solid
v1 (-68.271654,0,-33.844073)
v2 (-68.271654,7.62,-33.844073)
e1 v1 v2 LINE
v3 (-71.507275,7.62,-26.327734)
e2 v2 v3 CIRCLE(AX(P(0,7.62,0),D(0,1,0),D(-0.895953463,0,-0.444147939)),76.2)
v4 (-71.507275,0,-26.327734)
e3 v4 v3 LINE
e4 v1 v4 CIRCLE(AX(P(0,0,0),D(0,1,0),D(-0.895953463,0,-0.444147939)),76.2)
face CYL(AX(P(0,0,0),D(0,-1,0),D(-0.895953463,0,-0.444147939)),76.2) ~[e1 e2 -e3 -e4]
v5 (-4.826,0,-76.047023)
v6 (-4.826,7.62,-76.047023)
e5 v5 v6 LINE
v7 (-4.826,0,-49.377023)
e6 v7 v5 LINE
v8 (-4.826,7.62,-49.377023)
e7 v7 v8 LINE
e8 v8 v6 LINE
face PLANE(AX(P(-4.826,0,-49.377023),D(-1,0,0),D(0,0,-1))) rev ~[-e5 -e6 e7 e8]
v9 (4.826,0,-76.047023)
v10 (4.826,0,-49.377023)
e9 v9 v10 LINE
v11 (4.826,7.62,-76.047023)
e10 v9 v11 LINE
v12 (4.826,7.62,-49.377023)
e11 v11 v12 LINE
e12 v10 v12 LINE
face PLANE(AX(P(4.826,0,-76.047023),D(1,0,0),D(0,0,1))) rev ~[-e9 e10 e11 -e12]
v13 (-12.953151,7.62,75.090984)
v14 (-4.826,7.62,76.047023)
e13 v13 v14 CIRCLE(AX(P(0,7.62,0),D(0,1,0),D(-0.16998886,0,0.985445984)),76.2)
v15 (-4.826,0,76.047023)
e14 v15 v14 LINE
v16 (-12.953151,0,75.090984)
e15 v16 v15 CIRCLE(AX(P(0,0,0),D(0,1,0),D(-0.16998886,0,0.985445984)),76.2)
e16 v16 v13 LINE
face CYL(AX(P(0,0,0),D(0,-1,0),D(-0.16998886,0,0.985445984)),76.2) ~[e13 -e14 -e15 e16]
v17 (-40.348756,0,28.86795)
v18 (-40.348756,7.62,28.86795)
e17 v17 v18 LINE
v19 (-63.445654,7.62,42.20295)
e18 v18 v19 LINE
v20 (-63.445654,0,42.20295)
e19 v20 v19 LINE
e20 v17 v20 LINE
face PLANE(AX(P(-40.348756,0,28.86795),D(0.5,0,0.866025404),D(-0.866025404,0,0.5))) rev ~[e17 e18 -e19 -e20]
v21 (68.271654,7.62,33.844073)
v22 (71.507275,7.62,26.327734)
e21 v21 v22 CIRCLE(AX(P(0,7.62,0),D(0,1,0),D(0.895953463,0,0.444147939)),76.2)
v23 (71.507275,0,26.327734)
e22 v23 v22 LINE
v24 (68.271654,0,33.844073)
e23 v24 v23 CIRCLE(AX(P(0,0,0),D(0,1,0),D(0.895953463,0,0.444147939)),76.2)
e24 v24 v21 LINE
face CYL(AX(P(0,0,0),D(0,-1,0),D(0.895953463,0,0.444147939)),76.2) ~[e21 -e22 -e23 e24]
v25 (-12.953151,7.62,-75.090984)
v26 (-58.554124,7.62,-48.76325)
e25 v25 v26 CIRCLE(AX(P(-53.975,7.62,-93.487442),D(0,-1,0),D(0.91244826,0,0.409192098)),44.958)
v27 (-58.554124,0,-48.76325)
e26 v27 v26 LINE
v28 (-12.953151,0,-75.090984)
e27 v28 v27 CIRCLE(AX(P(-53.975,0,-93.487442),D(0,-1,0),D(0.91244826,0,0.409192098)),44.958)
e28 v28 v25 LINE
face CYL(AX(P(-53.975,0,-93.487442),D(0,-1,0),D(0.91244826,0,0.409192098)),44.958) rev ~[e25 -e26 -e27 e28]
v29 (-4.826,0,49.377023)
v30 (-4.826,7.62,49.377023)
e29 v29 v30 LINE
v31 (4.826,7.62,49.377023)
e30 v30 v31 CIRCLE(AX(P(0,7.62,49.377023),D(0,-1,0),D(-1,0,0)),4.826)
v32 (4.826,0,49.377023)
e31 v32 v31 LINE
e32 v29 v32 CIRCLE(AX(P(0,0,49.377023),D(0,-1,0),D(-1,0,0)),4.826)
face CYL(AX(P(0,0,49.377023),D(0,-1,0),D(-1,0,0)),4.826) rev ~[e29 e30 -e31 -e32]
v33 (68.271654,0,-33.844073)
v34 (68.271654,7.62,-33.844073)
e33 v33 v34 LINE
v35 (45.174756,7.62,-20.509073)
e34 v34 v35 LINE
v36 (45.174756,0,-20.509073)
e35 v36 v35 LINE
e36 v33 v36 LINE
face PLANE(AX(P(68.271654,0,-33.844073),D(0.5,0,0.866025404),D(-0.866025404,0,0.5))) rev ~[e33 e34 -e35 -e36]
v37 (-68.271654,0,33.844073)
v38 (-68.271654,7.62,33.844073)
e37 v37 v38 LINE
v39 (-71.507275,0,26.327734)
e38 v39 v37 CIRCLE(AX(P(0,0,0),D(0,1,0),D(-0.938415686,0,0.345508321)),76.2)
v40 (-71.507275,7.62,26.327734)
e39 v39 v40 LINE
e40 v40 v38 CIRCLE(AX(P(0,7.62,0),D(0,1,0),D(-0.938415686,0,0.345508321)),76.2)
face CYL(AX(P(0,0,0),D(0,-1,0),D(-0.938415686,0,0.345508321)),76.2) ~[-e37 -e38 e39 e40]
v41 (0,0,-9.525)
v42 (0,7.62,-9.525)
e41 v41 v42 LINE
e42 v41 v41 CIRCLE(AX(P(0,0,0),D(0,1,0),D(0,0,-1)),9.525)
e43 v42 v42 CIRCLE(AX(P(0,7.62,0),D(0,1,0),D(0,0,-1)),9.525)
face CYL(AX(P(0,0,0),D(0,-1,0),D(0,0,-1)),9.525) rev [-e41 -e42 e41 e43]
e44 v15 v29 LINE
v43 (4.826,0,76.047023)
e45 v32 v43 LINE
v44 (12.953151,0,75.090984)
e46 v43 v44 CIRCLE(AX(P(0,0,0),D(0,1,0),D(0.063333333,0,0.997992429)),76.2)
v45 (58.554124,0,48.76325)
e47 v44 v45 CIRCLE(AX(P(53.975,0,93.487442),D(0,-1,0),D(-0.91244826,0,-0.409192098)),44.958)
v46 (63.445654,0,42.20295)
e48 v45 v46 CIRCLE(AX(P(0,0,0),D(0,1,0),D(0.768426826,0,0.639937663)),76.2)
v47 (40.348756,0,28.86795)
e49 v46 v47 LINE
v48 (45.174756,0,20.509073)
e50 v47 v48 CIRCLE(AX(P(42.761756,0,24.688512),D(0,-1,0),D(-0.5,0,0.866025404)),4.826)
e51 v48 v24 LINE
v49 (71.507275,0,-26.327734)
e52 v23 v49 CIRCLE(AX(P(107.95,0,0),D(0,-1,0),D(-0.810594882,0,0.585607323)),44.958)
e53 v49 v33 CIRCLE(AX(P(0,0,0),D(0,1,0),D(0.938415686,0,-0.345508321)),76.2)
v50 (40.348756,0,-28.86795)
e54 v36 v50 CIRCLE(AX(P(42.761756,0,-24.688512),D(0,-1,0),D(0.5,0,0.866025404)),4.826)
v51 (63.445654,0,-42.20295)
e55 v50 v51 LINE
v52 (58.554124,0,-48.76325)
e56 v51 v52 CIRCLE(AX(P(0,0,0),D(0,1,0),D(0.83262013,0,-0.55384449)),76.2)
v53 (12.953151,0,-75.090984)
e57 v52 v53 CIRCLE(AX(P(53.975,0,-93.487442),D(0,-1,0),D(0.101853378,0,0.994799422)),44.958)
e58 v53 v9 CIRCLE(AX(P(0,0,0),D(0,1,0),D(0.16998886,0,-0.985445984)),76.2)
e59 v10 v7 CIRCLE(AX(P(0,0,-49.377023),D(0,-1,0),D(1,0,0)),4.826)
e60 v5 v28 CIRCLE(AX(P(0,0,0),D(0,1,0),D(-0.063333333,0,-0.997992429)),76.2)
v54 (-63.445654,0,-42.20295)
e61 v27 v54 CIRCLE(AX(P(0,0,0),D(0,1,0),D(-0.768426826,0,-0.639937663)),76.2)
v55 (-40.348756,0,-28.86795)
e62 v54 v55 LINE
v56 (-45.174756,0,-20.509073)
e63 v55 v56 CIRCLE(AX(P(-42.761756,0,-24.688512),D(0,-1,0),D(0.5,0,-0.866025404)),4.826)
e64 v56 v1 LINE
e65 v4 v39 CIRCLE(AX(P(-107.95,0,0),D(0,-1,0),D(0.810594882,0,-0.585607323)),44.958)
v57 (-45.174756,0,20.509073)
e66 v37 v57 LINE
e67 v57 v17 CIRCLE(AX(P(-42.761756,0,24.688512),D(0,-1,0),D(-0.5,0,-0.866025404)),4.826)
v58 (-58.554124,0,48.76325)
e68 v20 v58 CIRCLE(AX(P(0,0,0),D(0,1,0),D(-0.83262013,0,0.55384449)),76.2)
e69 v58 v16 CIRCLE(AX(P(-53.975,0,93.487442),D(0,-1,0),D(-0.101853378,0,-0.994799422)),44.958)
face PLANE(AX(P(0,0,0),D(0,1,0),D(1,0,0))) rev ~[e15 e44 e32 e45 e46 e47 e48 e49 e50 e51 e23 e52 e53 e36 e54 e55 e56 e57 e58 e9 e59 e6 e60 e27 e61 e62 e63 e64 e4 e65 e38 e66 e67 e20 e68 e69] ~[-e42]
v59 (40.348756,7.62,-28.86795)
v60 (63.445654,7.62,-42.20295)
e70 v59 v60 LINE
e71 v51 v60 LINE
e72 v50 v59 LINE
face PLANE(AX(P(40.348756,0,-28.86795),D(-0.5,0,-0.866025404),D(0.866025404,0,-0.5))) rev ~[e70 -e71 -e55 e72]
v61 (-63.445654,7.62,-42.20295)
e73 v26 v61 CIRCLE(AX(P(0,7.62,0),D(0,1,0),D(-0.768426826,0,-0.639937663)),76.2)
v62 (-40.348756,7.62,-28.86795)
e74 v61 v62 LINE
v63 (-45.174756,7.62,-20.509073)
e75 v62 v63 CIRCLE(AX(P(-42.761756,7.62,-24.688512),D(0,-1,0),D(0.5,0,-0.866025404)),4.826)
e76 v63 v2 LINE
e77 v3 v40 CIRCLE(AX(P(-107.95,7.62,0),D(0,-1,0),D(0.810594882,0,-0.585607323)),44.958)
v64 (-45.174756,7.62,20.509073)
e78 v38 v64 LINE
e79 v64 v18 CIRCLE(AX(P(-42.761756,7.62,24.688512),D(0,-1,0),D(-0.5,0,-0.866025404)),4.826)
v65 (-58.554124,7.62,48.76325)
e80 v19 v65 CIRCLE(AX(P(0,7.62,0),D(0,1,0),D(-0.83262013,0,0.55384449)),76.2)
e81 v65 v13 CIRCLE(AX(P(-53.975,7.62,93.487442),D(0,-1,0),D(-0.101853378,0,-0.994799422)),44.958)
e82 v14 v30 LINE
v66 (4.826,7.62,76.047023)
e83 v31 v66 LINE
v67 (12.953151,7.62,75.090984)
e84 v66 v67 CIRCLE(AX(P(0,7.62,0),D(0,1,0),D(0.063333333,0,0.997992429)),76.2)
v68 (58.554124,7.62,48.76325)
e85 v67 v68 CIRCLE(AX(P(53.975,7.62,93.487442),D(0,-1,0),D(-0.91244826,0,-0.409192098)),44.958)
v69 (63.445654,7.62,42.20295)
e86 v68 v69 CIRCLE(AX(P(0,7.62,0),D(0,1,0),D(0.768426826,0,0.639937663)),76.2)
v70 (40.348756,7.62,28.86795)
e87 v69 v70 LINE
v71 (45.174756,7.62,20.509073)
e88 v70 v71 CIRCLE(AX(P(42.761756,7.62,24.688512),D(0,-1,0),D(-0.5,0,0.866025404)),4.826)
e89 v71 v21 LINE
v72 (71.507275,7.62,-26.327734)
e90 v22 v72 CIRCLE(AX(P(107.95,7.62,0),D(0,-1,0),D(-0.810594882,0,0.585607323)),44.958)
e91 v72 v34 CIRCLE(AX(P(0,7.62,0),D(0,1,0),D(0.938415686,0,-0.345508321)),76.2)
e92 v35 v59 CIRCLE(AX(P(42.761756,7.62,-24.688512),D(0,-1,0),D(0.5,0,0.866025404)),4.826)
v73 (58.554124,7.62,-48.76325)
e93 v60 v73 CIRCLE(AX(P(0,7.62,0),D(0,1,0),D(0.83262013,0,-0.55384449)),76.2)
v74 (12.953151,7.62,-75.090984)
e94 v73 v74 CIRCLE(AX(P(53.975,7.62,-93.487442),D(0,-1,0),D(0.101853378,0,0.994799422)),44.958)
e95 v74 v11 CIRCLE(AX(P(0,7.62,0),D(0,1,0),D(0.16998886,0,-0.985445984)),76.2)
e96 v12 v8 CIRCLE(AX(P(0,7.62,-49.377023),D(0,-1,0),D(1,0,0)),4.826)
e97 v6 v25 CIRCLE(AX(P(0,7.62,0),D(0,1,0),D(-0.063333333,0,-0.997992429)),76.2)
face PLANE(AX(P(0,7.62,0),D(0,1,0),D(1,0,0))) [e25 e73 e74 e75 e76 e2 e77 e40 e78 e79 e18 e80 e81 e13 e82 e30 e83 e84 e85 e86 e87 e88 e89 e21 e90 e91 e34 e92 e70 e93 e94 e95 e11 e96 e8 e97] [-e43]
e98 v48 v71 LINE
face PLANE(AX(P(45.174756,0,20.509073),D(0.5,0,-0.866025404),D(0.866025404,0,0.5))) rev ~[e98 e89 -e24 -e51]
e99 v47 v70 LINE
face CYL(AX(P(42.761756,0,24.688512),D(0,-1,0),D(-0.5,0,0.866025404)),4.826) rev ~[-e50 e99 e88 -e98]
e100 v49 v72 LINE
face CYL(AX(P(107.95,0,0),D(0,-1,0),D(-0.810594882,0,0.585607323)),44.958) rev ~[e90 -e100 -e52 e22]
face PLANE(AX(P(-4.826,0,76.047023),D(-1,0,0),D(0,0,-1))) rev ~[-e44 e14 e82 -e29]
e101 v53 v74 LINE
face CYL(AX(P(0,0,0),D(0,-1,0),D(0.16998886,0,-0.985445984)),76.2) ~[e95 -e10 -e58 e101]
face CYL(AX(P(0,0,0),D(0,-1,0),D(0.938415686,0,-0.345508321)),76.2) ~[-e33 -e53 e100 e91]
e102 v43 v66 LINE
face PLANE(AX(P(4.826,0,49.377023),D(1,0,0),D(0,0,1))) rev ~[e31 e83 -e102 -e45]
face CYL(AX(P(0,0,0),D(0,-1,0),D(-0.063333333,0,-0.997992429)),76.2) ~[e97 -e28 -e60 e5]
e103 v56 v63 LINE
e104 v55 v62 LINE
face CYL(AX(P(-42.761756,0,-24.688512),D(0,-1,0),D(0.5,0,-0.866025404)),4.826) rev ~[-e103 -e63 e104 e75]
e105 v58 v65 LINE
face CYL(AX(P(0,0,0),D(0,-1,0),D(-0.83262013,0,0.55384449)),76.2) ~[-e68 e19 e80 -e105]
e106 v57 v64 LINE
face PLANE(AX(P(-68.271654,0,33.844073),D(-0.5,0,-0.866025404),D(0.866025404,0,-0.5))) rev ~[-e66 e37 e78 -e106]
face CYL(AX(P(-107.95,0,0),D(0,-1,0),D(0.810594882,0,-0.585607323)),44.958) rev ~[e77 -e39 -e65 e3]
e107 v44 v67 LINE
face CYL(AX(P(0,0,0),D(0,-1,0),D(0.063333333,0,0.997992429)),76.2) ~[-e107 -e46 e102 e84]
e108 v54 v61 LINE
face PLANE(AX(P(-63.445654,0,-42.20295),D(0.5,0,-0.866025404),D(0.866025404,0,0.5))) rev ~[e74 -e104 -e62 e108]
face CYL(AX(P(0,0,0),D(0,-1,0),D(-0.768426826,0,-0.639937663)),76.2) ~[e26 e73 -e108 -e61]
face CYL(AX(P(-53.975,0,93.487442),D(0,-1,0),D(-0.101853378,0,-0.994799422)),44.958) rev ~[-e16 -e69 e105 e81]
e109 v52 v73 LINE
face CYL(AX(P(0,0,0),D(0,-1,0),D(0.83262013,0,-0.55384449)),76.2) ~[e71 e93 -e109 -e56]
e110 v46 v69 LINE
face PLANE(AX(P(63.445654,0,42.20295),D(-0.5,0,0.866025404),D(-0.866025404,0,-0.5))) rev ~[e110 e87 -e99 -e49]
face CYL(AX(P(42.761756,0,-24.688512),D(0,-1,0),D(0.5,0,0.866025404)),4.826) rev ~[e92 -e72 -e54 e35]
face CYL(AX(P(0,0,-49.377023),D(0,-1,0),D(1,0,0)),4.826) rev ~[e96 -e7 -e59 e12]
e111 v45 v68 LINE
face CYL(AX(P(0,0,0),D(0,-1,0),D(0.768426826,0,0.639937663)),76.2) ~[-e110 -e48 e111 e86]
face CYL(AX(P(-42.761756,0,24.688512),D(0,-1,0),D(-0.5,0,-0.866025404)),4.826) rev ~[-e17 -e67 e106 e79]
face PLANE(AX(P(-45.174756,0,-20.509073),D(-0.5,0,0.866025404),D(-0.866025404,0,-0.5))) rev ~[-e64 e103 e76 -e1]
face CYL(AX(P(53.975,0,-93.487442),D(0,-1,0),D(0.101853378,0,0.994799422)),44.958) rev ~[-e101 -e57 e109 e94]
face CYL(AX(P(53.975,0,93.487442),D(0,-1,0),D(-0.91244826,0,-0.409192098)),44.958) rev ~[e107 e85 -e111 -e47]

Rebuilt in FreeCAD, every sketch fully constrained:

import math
import FreeCAD as App
import Part
import Sketcher

V = App.Vector
Q = App.Units.Quantity

doc = App.newDocument("Part")
body = doc.addObject("PartDesign::Body", "Body")

# Sketch on XZ plane
sketch1 = body.newObject("Sketcher::SketchObject", "Sketch")
sketch1.AttachmentSupport = (doc.getObject("XZ_Plane"), [""])
sketch1.MapMode = "FlatFace"
sketch1.addGeometry(Part.LineSegment(V(-4.826, -49.377023, 0), V(-4.826, -76.047023, 0)), False)
sketch1.addGeometry(Part.ArcOfCircle(Part.Circle(V(0, 0, 0), V(0, 0, 1), 76.2), math.radians(-99.787171), math.radians(-93.631163)), False)
sketch1.addGeometry(Part.ArcOfCircle(Part.Circle(V(-53.975, -93.487442, 0), V(0, 0, 1), 44.958), math.radians(24.154094), math.radians(95.845906)), False)
sketch1.addGeometry(Part.ArcOfCircle(Part.Circle(V(0, 0, 0), V(0, 0, 1), 76.2), math.radians(-146.368837), math.radians(-140.212829)), False)
sketch1.addGeometry(Part.LineSegment(V(-63.445654, -42.20295, 0), V(-40.348756, -28.86795, 0)), False)
sketch1.addGeometry(Part.ArcOfCircle(Part.Circle(V(-42.761756, -24.688512, 0), V(0, 0, 1), 4.826), math.radians(-60), math.radians(120)), False)
sketch1.addGeometry(Part.LineSegment(V(-45.174756, -20.509073, 0), V(-68.271654, -33.844073, 0)), False)
sketch1.addGeometry(Part.ArcOfCircle(Part.Circle(V(0, 0, 0), V(0, 0, 1), 76.2), math.radians(-159.787171), math.radians(-153.631163)), False)
sketch1.addGeometry(Part.ArcOfCircle(Part.Circle(V(-107.95, 0, 0), V(0, 0, 1), 44.958), math.radians(-35.845906), math.radians(35.845906)), False)
sketch1.addGeometry(Part.ArcOfCircle(Part.Circle(V(0, 0, 0), V(0, 0, 1), 76.2), math.radians(153.631163), math.radians(159.787171)), False)
sketch1.addGeometry(Part.LineSegment(V(-68.271654, 33.844073, 0), V(-45.174756, 20.509073, 0)), False)
sketch1.addGeometry(Part.ArcOfCircle(Part.Circle(V(-42.761756, 24.688512, 0), V(0, 0, 1), 4.826), math.radians(-120), math.radians(60)), False)
sketch1.addGeometry(Part.LineSegment(V(-40.348756, 28.86795, 0), V(-63.445654, 42.20295, 0)), False)
sketch1.addGeometry(Part.ArcOfCircle(Part.Circle(V(0, 0, 0), V(0, 0, 1), 76.2), math.radians(140.212829), math.radians(146.368837)), False)
sketch1.addGeometry(Part.ArcOfCircle(Part.Circle(V(-53.975, 93.487442, 0), V(0, 0, 1), 44.958), math.radians(-95.845906), math.radians(-24.154094)), False)
sketch1.addGeometry(Part.ArcOfCircle(Part.Circle(V(0, 0, 0), V(0, 0, 1), 76.2), math.radians(93.631163), math.radians(99.787171)), False)
sketch1.addGeometry(Part.LineSegment(V(-4.826, 76.047023, 0), V(-4.826, 49.377023, 0)), False)
sketch1.addGeometry(Part.ArcOfCircle(Part.Circle(V(0, 49.377023, 0), V(0, 0, 1), 4.826), math.radians(180), math.radians(360)), False)
sketch1.addGeometry(Part.LineSegment(V(4.826, 49.377023, 0), V(4.826, 76.047023, 0)), False)
sketch1.addGeometry(Part.ArcOfCircle(Part.Circle(V(0, 0, 0), V(0, 0, 1), 76.2), math.radians(80.212829), math.radians(86.368837)), False)
sketch1.addGeometry(Part.ArcOfCircle(Part.Circle(V(53.975, 93.487442, 0), V(0, 0, 1), 44.958), math.radians(-155.845906), math.radians(-84.154094)), False)
sketch1.addGeometry(Part.ArcOfCircle(Part.Circle(V(0, 0, 0), V(0, 0, 1), 76.2), math.radians(33.631163), math.radians(39.787171)), False)
sketch1.addGeometry(Part.LineSegment(V(63.445654, 42.20295, 0), V(40.348756, 28.86795, 0)), False)
sketch1.addGeometry(Part.ArcOfCircle(Part.Circle(V(42.761756, 24.688512, 0), V(0, 0, 1), 4.826), math.radians(120), math.radians(300)), False)
sketch1.addGeometry(Part.LineSegment(V(45.174756, 20.509073, 0), V(68.271654, 33.844073, 0)), False)
sketch1.addGeometry(Part.ArcOfCircle(Part.Circle(V(0, 0, 0), V(0, 0, 1), 76.2), math.radians(20.212829), math.radians(26.368837)), False)
sketch1.addGeometry(Part.ArcOfCircle(Part.Circle(V(107.95, 0, 0), V(0, 0, 1), 44.958), math.radians(144.154094), math.radians(215.845906)), False)
sketch1.addGeometry(Part.ArcOfCircle(Part.Circle(V(0, 0, 0), V(0, 0, 1), 76.2), math.radians(-26.368837), math.radians(-20.212829)), False)
sketch1.addGeometry(Part.LineSegment(V(68.271654, -33.844073, 0), V(45.174756, -20.509073, 0)), False)
sketch1.addGeometry(Part.ArcOfCircle(Part.Circle(V(42.761756, -24.688512, 0), V(0, 0, 1), 4.826), math.radians(60), math.radians(240)), False)
sketch1.addGeometry(Part.LineSegment(V(40.348756, -28.86795, 0), V(63.445654, -42.20295, 0)), False)
sketch1.addGeometry(Part.ArcOfCircle(Part.Circle(V(0, 0, 0), V(0, 0, 1), 76.2), math.radians(-39.787171), math.radians(-33.631163)), False)
sketch1.addGeometry(Part.ArcOfCircle(Part.Circle(V(53.975, -93.487442, 0), V(0, 0, 1), 44.958), math.radians(84.154094), math.radians(155.845906)), False)
sketch1.addGeometry(Part.ArcOfCircle(Part.Circle(V(0, 0, 0), V(0, 0, 1), 76.2), math.radians(-86.368837), math.radians(-80.212829)), False)
sketch1.addGeometry(Part.LineSegment(V(4.826, -76.047023, 0), V(4.826, -49.377023, 0)), False)
sketch1.addGeometry(Part.ArcOfCircle(Part.Circle(V(0, -49.377023, 0), V(0, 0, 1), 4.826), math.radians(0), math.radians(180)), False)
sketch1.addGeometry(Part.Circle(V(0, 0, 0), V(0, 0, 1), 9.525), False)
sketch1.addConstraint(Sketcher.Constraint("Coincident", 0, 2, 1, 2))
sketch1.addConstraint(Sketcher.Constraint("Coincident", 1, 1, 2, 1))
sketch1.addConstraint(Sketcher.Constraint("Coincident", 2, 2, 3, 2))
sketch1.addConstraint(Sketcher.Constraint("Coincident", 3, 1, 4, 1))
sketch1.addConstraint(Sketcher.Constraint("Tangent", 4, 2, 5, 1))
sketch1.addConstraint(Sketcher.Constraint("Tangent", 5, 2, 6, 1))
sketch1.addConstraint(Sketcher.Constraint("Coincident", 6, 2, 7, 2))
sketch1.addConstraint(Sketcher.Constraint("Coincident", 7, 1, 8, 1))
sketch1.addConstraint(Sketcher.Constraint("Coincident", 8, 2, 9, 2))
sketch1.addConstraint(Sketcher.Constraint("Coincident", 9, 1, 10, 1))
sketch1.addConstraint(Sketcher.Constraint("Tangent", 10, 2, 11, 1))
sketch1.addConstraint(Sketcher.Constraint("Tangent", 11, 2, 12, 1))
sketch1.addConstraint(Sketcher.Constraint("Coincident", 12, 2, 13, 2))
sketch1.addConstraint(Sketcher.Constraint("Coincident", 13, 1, 14, 1))
sketch1.addConstraint(Sketcher.Constraint("Coincident", 14, 2, 15, 2))
sketch1.addConstraint(Sketcher.Constraint("Coincident", 15, 1, 16, 1))
sketch1.addConstraint(Sketcher.Constraint("Tangent", 16, 2, 17, 1))
sketch1.addConstraint(Sketcher.Constraint("Tangent", 17, 2, 18, 1))
sketch1.addConstraint(Sketcher.Constraint("Coincident", 18, 2, 19, 2))
sketch1.addConstraint(Sketcher.Constraint("Coincident", 19, 1, 20, 1))
sketch1.addConstraint(Sketcher.Constraint("Coincident", 20, 2, 21, 2))
sketch1.addConstraint(Sketcher.Constraint("Coincident", 21, 1, 22, 1))
sketch1.addConstraint(Sketcher.Constraint("Tangent", 22, 2, 23, 1))
sketch1.addConstraint(Sketcher.Constraint("Tangent", 23, 2, 24, 1))
sketch1.addConstraint(Sketcher.Constraint("Coincident", 24, 2, 25, 2))
sketch1.addConstraint(Sketcher.Constraint("Coincident", 25, 1, 26, 1))
sketch1.addConstraint(Sketcher.Constraint("Coincident", 26, 2, 27, 2))
sketch1.addConstraint(Sketcher.Constraint("Coincident", 27, 1, 28, 1))
sketch1.addConstraint(Sketcher.Constraint("Tangent", 28, 2, 29, 1))
sketch1.addConstraint(Sketcher.Constraint("Tangent", 29, 2, 30, 1))
sketch1.addConstraint(Sketcher.Constraint("Coincident", 30, 2, 31, 2))
sketch1.addConstraint(Sketcher.Constraint("Coincident", 31, 1, 32, 1))
sketch1.addConstraint(Sketcher.Constraint("Coincident", 32, 2, 33, 2))
sketch1.addConstraint(Sketcher.Constraint("Coincident", 33, 1, 34, 1))
sketch1.addConstraint(Sketcher.Constraint("Tangent", 34, 2, 35, 1))
sketch1.addConstraint(Sketcher.Constraint("Tangent", 35, 2, 0, 1))
sketch1.addConstraint(Sketcher.Constraint("Vertical", 0))
sketch1.addConstraint(Sketcher.Constraint("Vertical", 16))
sketch1.addConstraint(Sketcher.Constraint("Vertical", 18))
sketch1.addConstraint(Sketcher.Constraint("Vertical", 34))
sketch1.addConstraint(Sketcher.Constraint("Coincident", 1, 3, -1, 1))
sketch1.addConstraint(Sketcher.Constraint("Coincident", 3, 3, -1, 1))
sketch1.addConstraint(Sketcher.Constraint("Coincident", 7, 3, -1, 1))
sketch1.addConstraint(Sketcher.Constraint("Coincident", 9, 3, -1, 1))
sketch1.addConstraint(Sketcher.Constraint("Coincident", 13, 3, -1, 1))
sketch1.addConstraint(Sketcher.Constraint("Coincident", 15, 3, -1, 1))
sketch1.addConstraint(Sketcher.Constraint("Coincident", 19, 3, -1, 1))
sketch1.addConstraint(Sketcher.Constraint("Coincident", 21, 3, -1, 1))
sketch1.addConstraint(Sketcher.Constraint("Coincident", 25, 3, -1, 1))
sketch1.addConstraint(Sketcher.Constraint("Coincident", 27, 3, -1, 1))
sketch1.addConstraint(Sketcher.Constraint("Coincident", 31, 3, -1, 1))
sketch1.addConstraint(Sketcher.Constraint("Coincident", 33, 3, -1, 1))
sketch1.addConstraint(Sketcher.Constraint("Coincident", 36, 3, -1, 1))
sketch1.addConstraint(Sketcher.Constraint("Equal", 1, 3))
sketch1.addConstraint(Sketcher.Constraint("Equal", 3, 7))
sketch1.addConstraint(Sketcher.Constraint("Equal", 2, 8))
sketch1.addConstraint(Sketcher.Constraint("Equal", 7, 9))
sketch1.addConstraint(Sketcher.Constraint("Equal", 5, 11))
sketch1.addConstraint(Sketcher.Constraint("Equal", 9, 13))
sketch1.addConstraint(Sketcher.Constraint("Equal", 8, 14))
sketch1.addConstraint(Sketcher.Constraint("Equal", 13, 15))
sketch1.addConstraint(Sketcher.Constraint("Equal", 11, 17))
sketch1.addConstraint(Sketcher.Constraint("Equal", 15, 19))
sketch1.addConstraint(Sketcher.Constraint("Equal", 14, 20))
sketch1.addConstraint(Sketcher.Constraint("Equal", 19, 21))
sketch1.addConstraint(Sketcher.Constraint("Equal", 17, 23))
sketch1.addConstraint(Sketcher.Constraint("Equal", 21, 25))
sketch1.addConstraint(Sketcher.Constraint("Equal", 20, 26))
sketch1.addConstraint(Sketcher.Constraint("Equal", 25, 27))
sketch1.addConstraint(Sketcher.Constraint("Equal", 23, 29))
sketch1.addConstraint(Sketcher.Constraint("Equal", 27, 31))
sketch1.addConstraint(Sketcher.Constraint("Equal", 26, 32))
sketch1.addConstraint(Sketcher.Constraint("Equal", 31, 33))
sketch1.addConstraint(Sketcher.Constraint("Equal", 29, 35))
sketch1.addConstraint(Sketcher.Constraint("Symmetric", 2, 3, 20, 3, -1, 1))
sketch1.addConstraint(Sketcher.Constraint("Symmetric", 5, 3, 23, 3, -1, 1))
sketch1.addConstraint(Sketcher.Constraint("Symmetric", 8, 3, 26, 3, -1, 1))
sketch1.addConstraint(Sketcher.Constraint("Symmetric", 11, 3, 29, 3, -1, 1))
sketch1.addConstraint(Sketcher.Constraint("Symmetric", 14, 3, 32, 3, -1, 1))
sketch1.addConstraint(Sketcher.Constraint("Symmetric", 17, 3, 35, 3, -1, 1))
sketch1.addConstraint(Sketcher.Constraint("Symmetric", 14, 3, 20, 3, -2))
sketch1.addConstraint(Sketcher.Constraint("Symmetric", 11, 3, 23, 3, -2))
sketch1.addConstraint(Sketcher.Constraint("PointOnObject", 8, 3, -1))
sketch1.addConstraint(Sketcher.Constraint("PointOnObject", 17, 3, -2))
sketch1.addConstraint(Sketcher.Constraint("Parallel", 4, 6))
sketch1.addConstraint(Sketcher.Constraint("Parallel", 10, 12))
sketch1.addConstraint(Sketcher.Constraint("Parallel", 6, 22))
sketch1.addConstraint(Sketcher.Constraint("Parallel", 22, 24))
sketch1.addConstraint(Sketcher.Constraint("Parallel", 12, 28))
sketch1.addConstraint(Sketcher.Constraint("Parallel", 28, 30))
sketch1.addConstraint(Sketcher.Constraint("Horizontal", 12, 2, 21, 1))
sketch1.addConstraint(Sketcher.Constraint("Equal", 4, 6))
sketch1.addConstraint(Sketcher.Constraint("Radius", 1, Q("3 in")))
sketch1.addConstraint(Sketcher.Constraint("Diameter", 36, Q("0.75 in")))
sketch1.addConstraint(Sketcher.Constraint("Radius", 2, Q("1.77 in")))
sketch1.addConstraint(Sketcher.Constraint("Radius", 5, Q("0.19 in")))
sketch1.addConstraint(Sketcher.Constraint("Angle", 4, Q("30 deg")))
sketch1.addConstraint(Sketcher.Constraint("DistanceY", 0, 2, 0, 1, Q("1.05 in")))
sketch1.addConstraint(Sketcher.Constraint("Distance", 4, Q("1.05 in")))
sketch1.addConstraint(Sketcher.Constraint("DistanceX", 8, 3, -1, 1, Q("4.25 in")))
sketch1.addConstraint(Sketcher.Constraint("DistanceX", 2, 3, -1, 1, Q("2.125 in")))
sketch1.addConstraint(Sketcher.Constraint("DistanceX", 1, 1, -1, 1, 12.953151))
pad1 = body.newObject("PartDesign::Pad", "Pad")
pad1.Profile = sketch1
pad1.Length = Q("0.3 in")
pad1.Reversed = True

doc.recompute()
